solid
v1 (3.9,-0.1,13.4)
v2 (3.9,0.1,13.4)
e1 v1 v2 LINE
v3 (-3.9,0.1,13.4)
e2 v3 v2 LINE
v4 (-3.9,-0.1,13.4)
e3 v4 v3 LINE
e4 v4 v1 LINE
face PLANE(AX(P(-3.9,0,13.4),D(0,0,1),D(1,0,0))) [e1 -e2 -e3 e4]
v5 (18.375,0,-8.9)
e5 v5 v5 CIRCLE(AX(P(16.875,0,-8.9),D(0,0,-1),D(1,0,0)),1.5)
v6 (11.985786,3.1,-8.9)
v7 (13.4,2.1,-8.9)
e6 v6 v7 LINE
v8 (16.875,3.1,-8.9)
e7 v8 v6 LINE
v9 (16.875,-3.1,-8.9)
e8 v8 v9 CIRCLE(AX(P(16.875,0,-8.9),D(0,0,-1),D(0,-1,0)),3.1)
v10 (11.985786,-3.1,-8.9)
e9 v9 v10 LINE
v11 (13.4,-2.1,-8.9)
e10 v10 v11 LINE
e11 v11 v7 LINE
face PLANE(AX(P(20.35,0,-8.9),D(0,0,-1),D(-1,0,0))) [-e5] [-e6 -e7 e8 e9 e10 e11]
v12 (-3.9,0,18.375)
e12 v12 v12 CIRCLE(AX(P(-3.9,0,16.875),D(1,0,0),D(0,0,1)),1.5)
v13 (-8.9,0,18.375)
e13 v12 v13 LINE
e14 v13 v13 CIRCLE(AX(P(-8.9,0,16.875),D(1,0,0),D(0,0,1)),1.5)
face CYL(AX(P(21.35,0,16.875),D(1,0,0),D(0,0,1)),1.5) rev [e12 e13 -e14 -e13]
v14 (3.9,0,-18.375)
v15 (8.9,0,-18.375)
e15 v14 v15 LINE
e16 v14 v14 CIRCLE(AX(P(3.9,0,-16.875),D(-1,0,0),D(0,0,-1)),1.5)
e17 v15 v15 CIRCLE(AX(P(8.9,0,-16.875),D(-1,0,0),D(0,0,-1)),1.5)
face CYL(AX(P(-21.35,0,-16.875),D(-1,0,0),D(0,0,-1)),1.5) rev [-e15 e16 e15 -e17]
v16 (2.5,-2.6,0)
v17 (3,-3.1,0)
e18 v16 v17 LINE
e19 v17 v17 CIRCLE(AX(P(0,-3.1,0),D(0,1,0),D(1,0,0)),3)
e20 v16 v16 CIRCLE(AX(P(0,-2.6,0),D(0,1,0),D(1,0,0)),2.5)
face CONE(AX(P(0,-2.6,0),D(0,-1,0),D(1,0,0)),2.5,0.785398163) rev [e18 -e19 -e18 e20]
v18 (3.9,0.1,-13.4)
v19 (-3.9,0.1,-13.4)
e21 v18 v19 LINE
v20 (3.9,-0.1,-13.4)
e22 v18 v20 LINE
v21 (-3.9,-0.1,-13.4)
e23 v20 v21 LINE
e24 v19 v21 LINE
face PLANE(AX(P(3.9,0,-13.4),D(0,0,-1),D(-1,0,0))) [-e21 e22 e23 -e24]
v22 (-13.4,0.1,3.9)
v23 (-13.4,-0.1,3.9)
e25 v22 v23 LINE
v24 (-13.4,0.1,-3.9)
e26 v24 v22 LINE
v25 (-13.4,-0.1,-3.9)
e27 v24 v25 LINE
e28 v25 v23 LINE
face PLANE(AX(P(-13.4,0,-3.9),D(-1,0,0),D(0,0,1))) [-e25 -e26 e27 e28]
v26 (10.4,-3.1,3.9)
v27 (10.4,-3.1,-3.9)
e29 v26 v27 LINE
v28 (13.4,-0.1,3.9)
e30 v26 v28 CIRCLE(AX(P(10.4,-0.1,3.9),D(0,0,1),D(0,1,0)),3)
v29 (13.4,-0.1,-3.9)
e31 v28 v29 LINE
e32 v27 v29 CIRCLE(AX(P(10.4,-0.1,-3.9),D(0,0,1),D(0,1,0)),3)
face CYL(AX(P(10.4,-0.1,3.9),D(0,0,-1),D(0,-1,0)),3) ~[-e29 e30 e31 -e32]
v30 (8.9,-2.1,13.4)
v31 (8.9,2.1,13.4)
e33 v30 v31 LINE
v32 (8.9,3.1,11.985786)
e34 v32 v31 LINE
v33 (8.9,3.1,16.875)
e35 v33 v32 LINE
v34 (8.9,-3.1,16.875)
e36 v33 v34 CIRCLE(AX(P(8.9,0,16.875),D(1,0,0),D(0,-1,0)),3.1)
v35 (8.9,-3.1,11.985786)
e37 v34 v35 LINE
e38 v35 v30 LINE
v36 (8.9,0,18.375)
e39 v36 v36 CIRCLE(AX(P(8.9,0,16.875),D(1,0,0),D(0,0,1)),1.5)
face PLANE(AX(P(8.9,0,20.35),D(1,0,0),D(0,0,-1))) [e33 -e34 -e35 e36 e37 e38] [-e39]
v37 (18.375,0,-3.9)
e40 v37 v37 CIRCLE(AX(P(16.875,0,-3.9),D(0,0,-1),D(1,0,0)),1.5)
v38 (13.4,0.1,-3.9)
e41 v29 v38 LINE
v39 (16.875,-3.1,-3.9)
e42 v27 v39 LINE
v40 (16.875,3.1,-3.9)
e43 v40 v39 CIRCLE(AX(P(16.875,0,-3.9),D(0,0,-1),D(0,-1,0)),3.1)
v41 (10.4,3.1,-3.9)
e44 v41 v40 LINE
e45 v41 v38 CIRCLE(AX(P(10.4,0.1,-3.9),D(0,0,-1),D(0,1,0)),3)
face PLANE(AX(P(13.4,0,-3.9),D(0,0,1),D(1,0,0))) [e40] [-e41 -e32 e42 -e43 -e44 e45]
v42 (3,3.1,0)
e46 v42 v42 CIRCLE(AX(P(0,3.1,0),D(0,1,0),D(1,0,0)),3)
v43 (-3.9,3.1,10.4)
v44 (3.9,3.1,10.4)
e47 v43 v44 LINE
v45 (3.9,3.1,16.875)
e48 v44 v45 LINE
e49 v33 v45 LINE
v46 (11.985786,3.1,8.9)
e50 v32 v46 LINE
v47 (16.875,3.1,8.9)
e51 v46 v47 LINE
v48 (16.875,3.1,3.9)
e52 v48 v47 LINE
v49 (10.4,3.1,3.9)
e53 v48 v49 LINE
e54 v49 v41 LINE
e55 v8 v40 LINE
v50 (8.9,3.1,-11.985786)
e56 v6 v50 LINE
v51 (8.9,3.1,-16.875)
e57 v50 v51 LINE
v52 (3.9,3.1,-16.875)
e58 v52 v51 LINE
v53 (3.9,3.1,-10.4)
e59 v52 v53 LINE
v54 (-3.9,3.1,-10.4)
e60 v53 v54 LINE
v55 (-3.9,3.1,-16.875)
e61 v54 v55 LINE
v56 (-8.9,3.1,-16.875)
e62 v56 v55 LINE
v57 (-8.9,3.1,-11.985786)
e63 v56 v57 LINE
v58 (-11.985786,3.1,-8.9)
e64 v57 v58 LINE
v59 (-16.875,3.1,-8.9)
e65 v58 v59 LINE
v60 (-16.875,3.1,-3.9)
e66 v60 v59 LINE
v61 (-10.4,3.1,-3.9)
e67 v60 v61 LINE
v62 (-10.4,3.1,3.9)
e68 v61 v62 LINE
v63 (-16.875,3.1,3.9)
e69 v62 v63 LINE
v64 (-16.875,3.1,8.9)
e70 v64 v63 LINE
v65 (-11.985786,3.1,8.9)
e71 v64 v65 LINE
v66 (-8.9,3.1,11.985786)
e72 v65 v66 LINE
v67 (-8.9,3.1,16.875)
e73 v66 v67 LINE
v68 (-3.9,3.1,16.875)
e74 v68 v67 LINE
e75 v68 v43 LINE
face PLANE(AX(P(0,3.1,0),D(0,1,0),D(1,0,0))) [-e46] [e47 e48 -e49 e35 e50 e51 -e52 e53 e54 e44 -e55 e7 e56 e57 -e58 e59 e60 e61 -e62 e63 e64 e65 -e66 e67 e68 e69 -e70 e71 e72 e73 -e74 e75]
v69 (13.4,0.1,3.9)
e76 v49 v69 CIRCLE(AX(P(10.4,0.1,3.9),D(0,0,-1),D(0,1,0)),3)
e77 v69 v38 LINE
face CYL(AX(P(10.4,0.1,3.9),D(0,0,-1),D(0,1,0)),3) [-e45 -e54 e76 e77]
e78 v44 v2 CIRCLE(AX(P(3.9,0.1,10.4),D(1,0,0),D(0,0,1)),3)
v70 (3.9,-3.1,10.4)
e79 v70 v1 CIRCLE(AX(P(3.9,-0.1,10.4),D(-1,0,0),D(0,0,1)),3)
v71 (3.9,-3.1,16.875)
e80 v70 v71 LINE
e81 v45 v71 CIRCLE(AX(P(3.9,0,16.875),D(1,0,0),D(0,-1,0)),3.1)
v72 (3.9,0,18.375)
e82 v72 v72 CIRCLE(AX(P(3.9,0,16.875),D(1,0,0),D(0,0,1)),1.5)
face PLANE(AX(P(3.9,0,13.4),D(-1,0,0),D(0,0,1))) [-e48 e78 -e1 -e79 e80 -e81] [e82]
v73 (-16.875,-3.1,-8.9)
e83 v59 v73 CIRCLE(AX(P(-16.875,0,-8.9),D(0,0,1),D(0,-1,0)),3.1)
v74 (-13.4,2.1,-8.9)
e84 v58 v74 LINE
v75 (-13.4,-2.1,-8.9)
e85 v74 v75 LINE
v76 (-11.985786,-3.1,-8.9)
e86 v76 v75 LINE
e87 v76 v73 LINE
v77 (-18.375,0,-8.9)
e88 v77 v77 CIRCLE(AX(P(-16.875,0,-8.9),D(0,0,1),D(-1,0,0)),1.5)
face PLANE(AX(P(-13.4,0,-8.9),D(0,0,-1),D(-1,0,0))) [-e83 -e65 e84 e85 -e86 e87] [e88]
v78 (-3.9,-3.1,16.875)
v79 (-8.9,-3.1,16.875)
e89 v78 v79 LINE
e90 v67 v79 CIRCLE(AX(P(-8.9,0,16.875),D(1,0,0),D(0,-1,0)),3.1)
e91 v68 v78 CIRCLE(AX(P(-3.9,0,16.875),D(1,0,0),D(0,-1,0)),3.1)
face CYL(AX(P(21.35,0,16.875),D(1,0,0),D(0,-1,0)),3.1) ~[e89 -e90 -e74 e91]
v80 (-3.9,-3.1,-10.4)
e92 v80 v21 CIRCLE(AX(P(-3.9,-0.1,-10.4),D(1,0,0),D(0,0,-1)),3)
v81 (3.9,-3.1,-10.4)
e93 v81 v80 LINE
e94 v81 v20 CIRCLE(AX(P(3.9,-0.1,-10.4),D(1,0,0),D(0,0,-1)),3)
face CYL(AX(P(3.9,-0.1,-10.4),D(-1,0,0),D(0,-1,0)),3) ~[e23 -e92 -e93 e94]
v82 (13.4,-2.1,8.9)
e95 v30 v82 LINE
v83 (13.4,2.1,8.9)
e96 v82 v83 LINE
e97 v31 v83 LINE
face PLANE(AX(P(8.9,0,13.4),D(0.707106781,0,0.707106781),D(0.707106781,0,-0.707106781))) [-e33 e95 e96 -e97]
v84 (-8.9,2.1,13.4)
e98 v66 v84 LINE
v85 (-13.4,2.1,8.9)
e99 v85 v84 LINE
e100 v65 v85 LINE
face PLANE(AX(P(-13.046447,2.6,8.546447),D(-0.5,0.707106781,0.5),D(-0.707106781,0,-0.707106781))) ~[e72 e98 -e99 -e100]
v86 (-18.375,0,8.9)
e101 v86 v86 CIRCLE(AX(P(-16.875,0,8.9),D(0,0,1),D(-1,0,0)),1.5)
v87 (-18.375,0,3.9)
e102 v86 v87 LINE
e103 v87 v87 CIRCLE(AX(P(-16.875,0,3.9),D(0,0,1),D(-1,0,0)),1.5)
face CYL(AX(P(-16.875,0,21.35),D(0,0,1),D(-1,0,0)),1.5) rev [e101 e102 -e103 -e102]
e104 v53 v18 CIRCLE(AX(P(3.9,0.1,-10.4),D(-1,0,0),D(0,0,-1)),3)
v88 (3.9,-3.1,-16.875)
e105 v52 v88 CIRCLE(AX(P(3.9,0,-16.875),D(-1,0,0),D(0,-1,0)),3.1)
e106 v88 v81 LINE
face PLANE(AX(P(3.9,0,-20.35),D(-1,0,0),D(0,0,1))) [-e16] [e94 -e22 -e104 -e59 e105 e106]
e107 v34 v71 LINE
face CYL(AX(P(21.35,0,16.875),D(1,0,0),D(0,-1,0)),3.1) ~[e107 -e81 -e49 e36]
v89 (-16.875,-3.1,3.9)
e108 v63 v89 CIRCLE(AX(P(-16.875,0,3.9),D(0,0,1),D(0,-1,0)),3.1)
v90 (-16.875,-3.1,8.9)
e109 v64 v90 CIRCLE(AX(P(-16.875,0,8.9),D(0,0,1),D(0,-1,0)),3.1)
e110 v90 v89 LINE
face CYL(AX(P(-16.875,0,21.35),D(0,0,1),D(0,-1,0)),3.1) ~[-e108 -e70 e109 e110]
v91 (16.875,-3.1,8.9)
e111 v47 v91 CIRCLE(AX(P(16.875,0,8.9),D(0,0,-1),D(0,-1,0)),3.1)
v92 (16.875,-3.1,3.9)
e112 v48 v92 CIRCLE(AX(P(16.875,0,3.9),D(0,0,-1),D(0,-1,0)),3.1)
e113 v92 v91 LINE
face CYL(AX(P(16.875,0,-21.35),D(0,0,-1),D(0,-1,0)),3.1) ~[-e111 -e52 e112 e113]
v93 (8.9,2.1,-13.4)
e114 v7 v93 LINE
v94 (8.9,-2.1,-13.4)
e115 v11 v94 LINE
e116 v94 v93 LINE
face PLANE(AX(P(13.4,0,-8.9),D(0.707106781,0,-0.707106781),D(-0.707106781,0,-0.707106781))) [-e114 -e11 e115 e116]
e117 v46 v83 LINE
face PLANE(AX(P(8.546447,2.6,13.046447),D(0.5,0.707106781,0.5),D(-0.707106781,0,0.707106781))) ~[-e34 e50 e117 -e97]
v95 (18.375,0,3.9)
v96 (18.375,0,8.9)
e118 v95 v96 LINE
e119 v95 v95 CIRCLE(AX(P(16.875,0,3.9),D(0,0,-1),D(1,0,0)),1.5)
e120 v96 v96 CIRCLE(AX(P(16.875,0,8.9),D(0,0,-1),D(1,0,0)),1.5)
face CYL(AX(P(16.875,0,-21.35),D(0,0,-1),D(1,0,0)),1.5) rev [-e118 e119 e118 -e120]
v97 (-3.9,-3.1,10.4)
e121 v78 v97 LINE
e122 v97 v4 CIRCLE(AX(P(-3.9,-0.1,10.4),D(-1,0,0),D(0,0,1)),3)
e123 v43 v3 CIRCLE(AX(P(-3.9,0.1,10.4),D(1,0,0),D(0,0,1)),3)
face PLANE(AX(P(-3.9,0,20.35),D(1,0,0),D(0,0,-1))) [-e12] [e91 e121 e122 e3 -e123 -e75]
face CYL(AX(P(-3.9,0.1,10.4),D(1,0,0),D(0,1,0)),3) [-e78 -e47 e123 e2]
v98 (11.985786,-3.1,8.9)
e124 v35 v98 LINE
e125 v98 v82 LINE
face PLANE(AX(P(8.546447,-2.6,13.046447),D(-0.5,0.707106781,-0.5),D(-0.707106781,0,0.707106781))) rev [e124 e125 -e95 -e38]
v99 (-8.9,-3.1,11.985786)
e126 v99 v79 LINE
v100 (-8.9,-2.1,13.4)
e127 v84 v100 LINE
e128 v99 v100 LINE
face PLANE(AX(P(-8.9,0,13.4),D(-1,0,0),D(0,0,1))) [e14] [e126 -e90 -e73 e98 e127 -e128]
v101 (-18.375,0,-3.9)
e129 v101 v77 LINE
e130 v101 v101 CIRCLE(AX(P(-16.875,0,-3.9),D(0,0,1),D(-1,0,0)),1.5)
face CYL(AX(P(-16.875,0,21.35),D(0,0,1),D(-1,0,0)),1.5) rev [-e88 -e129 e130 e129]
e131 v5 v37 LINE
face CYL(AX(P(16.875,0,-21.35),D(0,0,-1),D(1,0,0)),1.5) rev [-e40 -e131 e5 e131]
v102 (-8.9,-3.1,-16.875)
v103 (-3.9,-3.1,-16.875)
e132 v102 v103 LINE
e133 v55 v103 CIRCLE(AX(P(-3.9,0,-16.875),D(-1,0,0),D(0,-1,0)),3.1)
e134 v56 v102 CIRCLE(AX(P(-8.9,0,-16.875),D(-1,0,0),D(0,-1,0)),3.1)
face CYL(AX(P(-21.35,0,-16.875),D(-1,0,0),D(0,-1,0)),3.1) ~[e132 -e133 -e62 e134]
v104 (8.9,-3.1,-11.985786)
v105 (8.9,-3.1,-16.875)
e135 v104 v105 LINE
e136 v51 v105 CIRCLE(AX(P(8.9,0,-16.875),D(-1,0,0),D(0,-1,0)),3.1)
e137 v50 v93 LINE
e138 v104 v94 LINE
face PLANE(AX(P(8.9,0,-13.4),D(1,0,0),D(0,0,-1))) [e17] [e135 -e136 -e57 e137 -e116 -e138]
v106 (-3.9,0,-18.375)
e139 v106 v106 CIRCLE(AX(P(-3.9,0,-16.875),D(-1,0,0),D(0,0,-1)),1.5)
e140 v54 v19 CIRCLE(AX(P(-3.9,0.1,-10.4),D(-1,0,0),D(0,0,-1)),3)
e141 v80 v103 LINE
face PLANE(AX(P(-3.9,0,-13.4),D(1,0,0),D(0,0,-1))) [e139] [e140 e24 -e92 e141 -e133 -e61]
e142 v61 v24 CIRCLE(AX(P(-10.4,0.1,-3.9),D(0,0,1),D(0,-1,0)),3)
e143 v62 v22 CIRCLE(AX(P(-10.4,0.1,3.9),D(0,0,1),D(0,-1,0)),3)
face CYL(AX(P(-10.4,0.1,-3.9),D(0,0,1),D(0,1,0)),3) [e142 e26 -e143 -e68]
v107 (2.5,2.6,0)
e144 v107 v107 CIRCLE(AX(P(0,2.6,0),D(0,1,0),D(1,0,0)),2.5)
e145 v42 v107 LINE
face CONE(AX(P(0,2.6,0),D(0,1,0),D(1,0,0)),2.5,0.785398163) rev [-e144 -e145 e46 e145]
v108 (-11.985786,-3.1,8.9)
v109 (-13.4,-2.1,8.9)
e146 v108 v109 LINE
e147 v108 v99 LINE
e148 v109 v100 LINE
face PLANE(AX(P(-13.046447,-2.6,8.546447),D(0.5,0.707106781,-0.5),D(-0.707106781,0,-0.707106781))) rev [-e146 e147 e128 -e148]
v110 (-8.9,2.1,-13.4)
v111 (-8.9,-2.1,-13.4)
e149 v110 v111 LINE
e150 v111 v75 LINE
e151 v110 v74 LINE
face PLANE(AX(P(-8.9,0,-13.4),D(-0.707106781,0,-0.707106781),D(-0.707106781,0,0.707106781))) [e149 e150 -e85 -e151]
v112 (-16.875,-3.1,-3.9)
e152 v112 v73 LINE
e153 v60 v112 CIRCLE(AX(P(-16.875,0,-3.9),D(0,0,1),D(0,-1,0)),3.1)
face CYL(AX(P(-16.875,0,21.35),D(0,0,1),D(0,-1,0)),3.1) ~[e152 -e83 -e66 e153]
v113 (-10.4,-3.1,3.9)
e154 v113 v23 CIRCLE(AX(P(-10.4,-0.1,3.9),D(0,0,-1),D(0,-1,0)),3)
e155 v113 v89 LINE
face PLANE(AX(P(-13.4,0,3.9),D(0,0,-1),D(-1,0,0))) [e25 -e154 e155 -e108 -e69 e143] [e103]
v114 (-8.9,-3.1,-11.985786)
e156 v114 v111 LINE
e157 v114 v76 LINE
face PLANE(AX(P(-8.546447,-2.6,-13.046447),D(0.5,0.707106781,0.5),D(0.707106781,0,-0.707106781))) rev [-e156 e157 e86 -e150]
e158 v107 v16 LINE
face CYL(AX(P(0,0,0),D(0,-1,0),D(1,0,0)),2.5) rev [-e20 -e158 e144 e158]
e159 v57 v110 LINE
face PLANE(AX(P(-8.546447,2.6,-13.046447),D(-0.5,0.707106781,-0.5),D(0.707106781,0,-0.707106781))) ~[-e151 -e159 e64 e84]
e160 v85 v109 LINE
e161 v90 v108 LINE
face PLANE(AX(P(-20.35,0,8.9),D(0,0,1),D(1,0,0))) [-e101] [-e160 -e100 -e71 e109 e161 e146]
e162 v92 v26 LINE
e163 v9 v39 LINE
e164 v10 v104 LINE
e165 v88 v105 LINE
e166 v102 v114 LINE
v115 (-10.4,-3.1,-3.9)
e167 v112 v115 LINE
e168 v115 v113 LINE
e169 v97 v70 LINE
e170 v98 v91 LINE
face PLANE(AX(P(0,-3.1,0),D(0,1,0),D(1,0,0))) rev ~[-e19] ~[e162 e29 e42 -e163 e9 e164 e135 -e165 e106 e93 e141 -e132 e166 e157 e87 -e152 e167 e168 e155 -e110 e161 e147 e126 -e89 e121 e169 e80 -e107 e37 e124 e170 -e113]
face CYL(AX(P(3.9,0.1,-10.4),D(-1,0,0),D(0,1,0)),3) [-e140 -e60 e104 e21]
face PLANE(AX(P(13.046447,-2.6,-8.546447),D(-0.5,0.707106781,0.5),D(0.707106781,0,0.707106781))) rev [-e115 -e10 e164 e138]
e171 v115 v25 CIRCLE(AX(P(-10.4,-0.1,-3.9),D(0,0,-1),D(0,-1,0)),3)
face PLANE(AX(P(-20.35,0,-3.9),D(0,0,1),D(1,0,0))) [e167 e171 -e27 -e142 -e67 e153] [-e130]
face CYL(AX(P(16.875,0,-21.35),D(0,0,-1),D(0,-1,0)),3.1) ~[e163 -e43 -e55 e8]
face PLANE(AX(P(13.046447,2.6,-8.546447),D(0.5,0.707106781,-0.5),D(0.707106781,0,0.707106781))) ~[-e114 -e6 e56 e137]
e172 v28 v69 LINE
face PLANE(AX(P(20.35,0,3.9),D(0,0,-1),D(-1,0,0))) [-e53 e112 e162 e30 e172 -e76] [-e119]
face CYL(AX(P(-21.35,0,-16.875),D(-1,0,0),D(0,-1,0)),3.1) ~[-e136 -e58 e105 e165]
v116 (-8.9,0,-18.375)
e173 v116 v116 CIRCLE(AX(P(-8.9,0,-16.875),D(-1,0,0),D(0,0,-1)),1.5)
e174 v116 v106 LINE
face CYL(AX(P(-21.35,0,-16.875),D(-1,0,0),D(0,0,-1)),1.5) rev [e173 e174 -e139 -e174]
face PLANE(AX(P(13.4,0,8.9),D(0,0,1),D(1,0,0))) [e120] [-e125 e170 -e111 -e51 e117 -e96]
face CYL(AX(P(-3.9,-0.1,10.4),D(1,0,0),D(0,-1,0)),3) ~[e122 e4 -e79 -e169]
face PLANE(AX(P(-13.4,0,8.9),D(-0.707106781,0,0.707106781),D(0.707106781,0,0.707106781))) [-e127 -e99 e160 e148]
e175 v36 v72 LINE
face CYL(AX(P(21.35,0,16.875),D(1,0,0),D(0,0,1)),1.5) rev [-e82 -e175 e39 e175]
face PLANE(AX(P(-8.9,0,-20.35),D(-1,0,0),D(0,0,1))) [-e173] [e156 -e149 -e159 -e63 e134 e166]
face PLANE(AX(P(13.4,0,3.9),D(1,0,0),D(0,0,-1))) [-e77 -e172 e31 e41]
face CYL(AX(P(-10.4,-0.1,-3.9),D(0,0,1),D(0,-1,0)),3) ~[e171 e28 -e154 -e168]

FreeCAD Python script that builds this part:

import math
import FreeCAD as App
import Part
import Sketcher

V = App.Vector
Q = App.Units.Quantity


def edges_at(feature, points):
    """Names of the edges that pass closest to the given points."""
    edges = feature.Shape.Edges
    near = lambda p: min(range(len(edges)), key=lambda i: edges[i].distToShape(Part.Vertex(*p))[0])
    return sorted({f"Edge{near(p) + 1}" for p in points})


def add_polygon(sketch, points):
    """Adds a closed chain of lines whose ends are joined by coincident constraints."""
    first, n = sketch.GeometryCount, len(points)
    for a, b in zip(points, points[1:] + points[:1]):
        sketch.addGeometry(Part.LineSegment(App.Vector(*a, 0), App.Vector(*b, 0)), False)
    for i in range(n):
        sketch.addConstraint(Sketcher.Constraint("Coincident", first + i, 2, first + (i + 1) % n, 1))

doc = App.newDocument("Part")
body = doc.addObject("PartDesign::Body", "Body")

sketch1 = body.newObject("Sketcher::SketchObject", "Sketch")
sketch1.AttachmentSupport = (doc.getObject("XZ_Plane"), [""])
sketch1.MapMode = "FlatFace"
add_polygon(sketch1, [(-8.9, 13.4), (-8.9, 20.4), (-3.9, 20.4), (-3.9, 13.4), (3.9, 13.4), (3.9, 20.4), (8.9, 20.4), (8.9, 13.4), (13.4, 8.9), (20.4, 8.9), (20.4, 3.9), (13.4, 3.9), (13.4, -3.9), (20.4, -3.9), (20.4, -8.9), (13.4, -8.9), (8.9, -13.4), (8.9, -20.4), (3.9, -20.4), (3.9, -13.4), (-3.9, -13.4), (-3.9, -20.4), (-8.9, -20.4), (-8.9, -13.4), (-13.4, -8.9), (-20.4, -8.9), (-20.4, -3.9), (-13.4, -3.9), (-13.4, 3.9), (-20.4, 3.9), (-20.4, 8.9), (-13.4, 8.9)])
sketch1.addGeometry(Part.Circle(V(0, 0, 0), V(0, 0, 1), 2.5), False)
sketch1.addConstraint([
    Sketcher.Constraint("Vertical", 0),
    Sketcher.Constraint("Horizontal", 1),
    Sketcher.Constraint("Vertical", 2),
    Sketcher.Constraint("Horizontal", 3),
    Sketcher.Constraint("Vertical", 4),
    Sketcher.Constraint("Horizontal", 5),
    Sketcher.Constraint("Vertical", 6),
    Sketcher.Constraint("Horizontal", 8),
    Sketcher.Constraint("Vertical", 9),
    Sketcher.Constraint("Horizontal", 10),
    Sketcher.Constraint("Vertical", 11),
    Sketcher.Constraint("Horizontal", 12),
    Sketcher.Constraint("Vertical", 13),
    Sketcher.Constraint("Horizontal", 14),
    Sketcher.Constraint("Vertical", 16),
    Sketcher.Constraint("Horizontal", 17),
    Sketcher.Constraint("Vertical", 18),
    Sketcher.Constraint("Horizontal", 19),
    Sketcher.Constraint("Vertical", 20),
    Sketcher.Constraint("Horizontal", 21),
    Sketcher.Constraint("Vertical", 22),
    Sketcher.Constraint("Horizontal", 24),
    Sketcher.Constraint("Vertical", 25),
    Sketcher.Constraint("Horizontal", 26),
    Sketcher.Constraint("Vertical", 27),
    Sketcher.Constraint("Horizontal", 28),
    Sketcher.Constraint("Vertical", 29),
    Sketcher.Constraint("Horizontal", 30),
    Sketcher.Constraint("Coincident", 32, 3, -1, 1),
    Sketcher.Constraint("Symmetric", 0, 2, 16, 2, -1, 1),
    Sketcher.Constraint("Symmetric", 2, 2, 18, 2, -1, 1),
    Sketcher.Constraint("Symmetric", 4, 2, 20, 2, -1, 1),
    Sketcher.Constraint("Symmetric", 6, 2, 22, 2, -1, 1),
    Sketcher.Constraint("Symmetric", 7, 2, 23, 2, -1, 1),
    Sketcher.Constraint("Symmetric", 9, 2, 25, 2, -1, 1),
    Sketcher.Constraint("Symmetric", 11, 2, 27, 2, -1, 1),
    Sketcher.Constraint("Symmetric", 13, 2, 29, 2, -1, 1),
    Sketcher.Constraint("Symmetric", 1, 2, 4, 2, -2),
    Sketcher.Constraint("Symmetric", 15, 2, 22, 2, -2),
    Sketcher.Constraint("Symmetric", 14, 2, 23, 2, -2),
    Sketcher.Constraint("Symmetric", 12, 2, 25, 2, -2),
    Sketcher.Constraint("Perpendicular", 7, 15),
    Sketcher.Constraint("Perpendicular", 23, 31),
    Sketcher.Constraint("Horizontal", 3, 2, 6, 2),
    Sketcher.Constraint("Horizontal", 6, 2, 31, 2),
    Sketcher.Constraint("Vertical", 7, 2, 10, 2),
    Sketcher.Constraint("Equal", 30, 0),
    Sketcher.Constraint("Equal", 21, 9),
    Sketcher.Constraint("Equal", 19, 11),
    Sketcher.Constraint("Diameter", 32, Q("5 mm")),
    Sketcher.Constraint("DistanceX", 1, 1, 1, 2, Q("5 mm")),
    Sketcher.Constraint("DistanceX", 3, 1, 3, 2, Q("7.8 mm")),
    Sketcher.Constraint("DistanceX", 8, 1, 8, 2, Q("6.95 mm")),
    Sketcher.Constraint("DistanceY", -1, 1, 2, 2, Q("13.4 mm")),
])
pad1 = body.newObject("PartDesign::Pad", "Pad")
pad1.Profile = sketch1
pad1.Length = 6.2
pad1.Midplane = True

sketch2 = body.newObject("Sketcher::SketchObject", "Sketch001")
sketch2.AttachmentSupport = (doc.getObject("YZ_Plane"), [""])
sketch2.MapMode = "FlatFace"
sketch2.AttachmentOffset = App.Placement(V(0, 0, 21.35), App.Rotation())
sketch2.addGeometry([
    Part.Circle(V(0, 16.9, 0), V(0, 0, 1), 1.5),
    Part.LineSegment(V(3.1, 20.4, 0), V(3.1, 16.9, 0)),
    Part.ArcOfCircle(Part.Circle(V(0, 16.9, 0), V(0, 0, 1), 3.1), math.radians(0), math.radians(180)),
    Part.LineSegment(V(-3.1, 16.9, 0), V(-3.1, 20.4, 0)),
    Part.LineSegment(V(-3.1, 20.4, 0), V(3.1, 20.4, 0)),
], False)
sketch2.addConstraint([
    Sketcher.Constraint("Tangent", 1, 2, 2, 1),
    Sketcher.Constraint("Tangent", 2, 2, 3, 1),
    Sketcher.Constraint("Coincident", 3, 2, 4, 1),
    Sketcher.Constraint("Coincident", 4, 2, 1, 1),
    Sketcher.Constraint("Vertical", 1),
    Sketcher.Constraint("Vertical", 3),
    Sketcher.Constraint("Horizontal", 4),
    Sketcher.Constraint("Coincident", 2, 3, 0, 3),
    Sketcher.Constraint("PointOnObject", 0, 3, -2),
    Sketcher.Constraint("Diameter", 0, Q("3 mm")),
    Sketcher.Constraint("Radius", 2, Q("3.1 mm")),
    Sketcher.Constraint("DistanceY", 1, 2, 1, 1, Q("3.475 mm")),
    Sketcher.Constraint("DistanceY", -1, 1, 3, 2, Q("20.35 mm")),
])
pocket1 = body.newObject("PartDesign::Pocket", "Pocket")
pocket1.Profile = sketch2
pocket1.Length = 42.7
doc.recompute()

polarpattern = body.newObject("PartDesign::PolarPattern", "PolarPattern")
polarpattern.Originals = [pocket1]
polarpattern.Axis = (doc.getObject("Y_Axis"), [""])
polarpattern.Angle = 360
polarpattern.Occurrences = 4
body.Tip = polarpattern
doc.recompute()

fillet = body.newObject("PartDesign::Fillet", "Fillet")
fillet.Base = (polarpattern, edges_at(polarpattern, [
    (-13.4, 3.1, 0),
    (0, 3.1, 13.4),
    (-13.4, -3.1, 0),
    (0, -3.1, -13.4),
    (13.4, -3.1, 0),
    (0, -3.1, 13.4),
    (13.4, 3.1, 0),
    (0, 3.1, -13.4),
]))
fillet.Radius = 3
doc.recompute()

chamfer = body.newObject("PartDesign::Chamfer", "Chamfer")
chamfer.Base = (fillet, edges_at(fillet, [
    (-11.15, 3.1, -11.15),
    (-11.15, -3.1, -11.15),
    (11.15, -3.1, -11.15),
    (11.15, 3.1, 11.15),
    (11.15, -3.1, 11.15),
    (-11.15, -3.1, 11.15),
    (-11.15, 3.1, 11.15),
    (11.15, 3.1, -11.15),
]))
chamfer.Size = 1
doc.recompute()

chamfer2 = body.newObject("PartDesign::Chamfer", "Chamfer001")
chamfer2.Base = (chamfer, edges_at(chamfer, [(-2.5, -3.1, 0), (-2.5, 3.1, 0)]))
chamfer2.Size = 0.5

doc.recompute()
